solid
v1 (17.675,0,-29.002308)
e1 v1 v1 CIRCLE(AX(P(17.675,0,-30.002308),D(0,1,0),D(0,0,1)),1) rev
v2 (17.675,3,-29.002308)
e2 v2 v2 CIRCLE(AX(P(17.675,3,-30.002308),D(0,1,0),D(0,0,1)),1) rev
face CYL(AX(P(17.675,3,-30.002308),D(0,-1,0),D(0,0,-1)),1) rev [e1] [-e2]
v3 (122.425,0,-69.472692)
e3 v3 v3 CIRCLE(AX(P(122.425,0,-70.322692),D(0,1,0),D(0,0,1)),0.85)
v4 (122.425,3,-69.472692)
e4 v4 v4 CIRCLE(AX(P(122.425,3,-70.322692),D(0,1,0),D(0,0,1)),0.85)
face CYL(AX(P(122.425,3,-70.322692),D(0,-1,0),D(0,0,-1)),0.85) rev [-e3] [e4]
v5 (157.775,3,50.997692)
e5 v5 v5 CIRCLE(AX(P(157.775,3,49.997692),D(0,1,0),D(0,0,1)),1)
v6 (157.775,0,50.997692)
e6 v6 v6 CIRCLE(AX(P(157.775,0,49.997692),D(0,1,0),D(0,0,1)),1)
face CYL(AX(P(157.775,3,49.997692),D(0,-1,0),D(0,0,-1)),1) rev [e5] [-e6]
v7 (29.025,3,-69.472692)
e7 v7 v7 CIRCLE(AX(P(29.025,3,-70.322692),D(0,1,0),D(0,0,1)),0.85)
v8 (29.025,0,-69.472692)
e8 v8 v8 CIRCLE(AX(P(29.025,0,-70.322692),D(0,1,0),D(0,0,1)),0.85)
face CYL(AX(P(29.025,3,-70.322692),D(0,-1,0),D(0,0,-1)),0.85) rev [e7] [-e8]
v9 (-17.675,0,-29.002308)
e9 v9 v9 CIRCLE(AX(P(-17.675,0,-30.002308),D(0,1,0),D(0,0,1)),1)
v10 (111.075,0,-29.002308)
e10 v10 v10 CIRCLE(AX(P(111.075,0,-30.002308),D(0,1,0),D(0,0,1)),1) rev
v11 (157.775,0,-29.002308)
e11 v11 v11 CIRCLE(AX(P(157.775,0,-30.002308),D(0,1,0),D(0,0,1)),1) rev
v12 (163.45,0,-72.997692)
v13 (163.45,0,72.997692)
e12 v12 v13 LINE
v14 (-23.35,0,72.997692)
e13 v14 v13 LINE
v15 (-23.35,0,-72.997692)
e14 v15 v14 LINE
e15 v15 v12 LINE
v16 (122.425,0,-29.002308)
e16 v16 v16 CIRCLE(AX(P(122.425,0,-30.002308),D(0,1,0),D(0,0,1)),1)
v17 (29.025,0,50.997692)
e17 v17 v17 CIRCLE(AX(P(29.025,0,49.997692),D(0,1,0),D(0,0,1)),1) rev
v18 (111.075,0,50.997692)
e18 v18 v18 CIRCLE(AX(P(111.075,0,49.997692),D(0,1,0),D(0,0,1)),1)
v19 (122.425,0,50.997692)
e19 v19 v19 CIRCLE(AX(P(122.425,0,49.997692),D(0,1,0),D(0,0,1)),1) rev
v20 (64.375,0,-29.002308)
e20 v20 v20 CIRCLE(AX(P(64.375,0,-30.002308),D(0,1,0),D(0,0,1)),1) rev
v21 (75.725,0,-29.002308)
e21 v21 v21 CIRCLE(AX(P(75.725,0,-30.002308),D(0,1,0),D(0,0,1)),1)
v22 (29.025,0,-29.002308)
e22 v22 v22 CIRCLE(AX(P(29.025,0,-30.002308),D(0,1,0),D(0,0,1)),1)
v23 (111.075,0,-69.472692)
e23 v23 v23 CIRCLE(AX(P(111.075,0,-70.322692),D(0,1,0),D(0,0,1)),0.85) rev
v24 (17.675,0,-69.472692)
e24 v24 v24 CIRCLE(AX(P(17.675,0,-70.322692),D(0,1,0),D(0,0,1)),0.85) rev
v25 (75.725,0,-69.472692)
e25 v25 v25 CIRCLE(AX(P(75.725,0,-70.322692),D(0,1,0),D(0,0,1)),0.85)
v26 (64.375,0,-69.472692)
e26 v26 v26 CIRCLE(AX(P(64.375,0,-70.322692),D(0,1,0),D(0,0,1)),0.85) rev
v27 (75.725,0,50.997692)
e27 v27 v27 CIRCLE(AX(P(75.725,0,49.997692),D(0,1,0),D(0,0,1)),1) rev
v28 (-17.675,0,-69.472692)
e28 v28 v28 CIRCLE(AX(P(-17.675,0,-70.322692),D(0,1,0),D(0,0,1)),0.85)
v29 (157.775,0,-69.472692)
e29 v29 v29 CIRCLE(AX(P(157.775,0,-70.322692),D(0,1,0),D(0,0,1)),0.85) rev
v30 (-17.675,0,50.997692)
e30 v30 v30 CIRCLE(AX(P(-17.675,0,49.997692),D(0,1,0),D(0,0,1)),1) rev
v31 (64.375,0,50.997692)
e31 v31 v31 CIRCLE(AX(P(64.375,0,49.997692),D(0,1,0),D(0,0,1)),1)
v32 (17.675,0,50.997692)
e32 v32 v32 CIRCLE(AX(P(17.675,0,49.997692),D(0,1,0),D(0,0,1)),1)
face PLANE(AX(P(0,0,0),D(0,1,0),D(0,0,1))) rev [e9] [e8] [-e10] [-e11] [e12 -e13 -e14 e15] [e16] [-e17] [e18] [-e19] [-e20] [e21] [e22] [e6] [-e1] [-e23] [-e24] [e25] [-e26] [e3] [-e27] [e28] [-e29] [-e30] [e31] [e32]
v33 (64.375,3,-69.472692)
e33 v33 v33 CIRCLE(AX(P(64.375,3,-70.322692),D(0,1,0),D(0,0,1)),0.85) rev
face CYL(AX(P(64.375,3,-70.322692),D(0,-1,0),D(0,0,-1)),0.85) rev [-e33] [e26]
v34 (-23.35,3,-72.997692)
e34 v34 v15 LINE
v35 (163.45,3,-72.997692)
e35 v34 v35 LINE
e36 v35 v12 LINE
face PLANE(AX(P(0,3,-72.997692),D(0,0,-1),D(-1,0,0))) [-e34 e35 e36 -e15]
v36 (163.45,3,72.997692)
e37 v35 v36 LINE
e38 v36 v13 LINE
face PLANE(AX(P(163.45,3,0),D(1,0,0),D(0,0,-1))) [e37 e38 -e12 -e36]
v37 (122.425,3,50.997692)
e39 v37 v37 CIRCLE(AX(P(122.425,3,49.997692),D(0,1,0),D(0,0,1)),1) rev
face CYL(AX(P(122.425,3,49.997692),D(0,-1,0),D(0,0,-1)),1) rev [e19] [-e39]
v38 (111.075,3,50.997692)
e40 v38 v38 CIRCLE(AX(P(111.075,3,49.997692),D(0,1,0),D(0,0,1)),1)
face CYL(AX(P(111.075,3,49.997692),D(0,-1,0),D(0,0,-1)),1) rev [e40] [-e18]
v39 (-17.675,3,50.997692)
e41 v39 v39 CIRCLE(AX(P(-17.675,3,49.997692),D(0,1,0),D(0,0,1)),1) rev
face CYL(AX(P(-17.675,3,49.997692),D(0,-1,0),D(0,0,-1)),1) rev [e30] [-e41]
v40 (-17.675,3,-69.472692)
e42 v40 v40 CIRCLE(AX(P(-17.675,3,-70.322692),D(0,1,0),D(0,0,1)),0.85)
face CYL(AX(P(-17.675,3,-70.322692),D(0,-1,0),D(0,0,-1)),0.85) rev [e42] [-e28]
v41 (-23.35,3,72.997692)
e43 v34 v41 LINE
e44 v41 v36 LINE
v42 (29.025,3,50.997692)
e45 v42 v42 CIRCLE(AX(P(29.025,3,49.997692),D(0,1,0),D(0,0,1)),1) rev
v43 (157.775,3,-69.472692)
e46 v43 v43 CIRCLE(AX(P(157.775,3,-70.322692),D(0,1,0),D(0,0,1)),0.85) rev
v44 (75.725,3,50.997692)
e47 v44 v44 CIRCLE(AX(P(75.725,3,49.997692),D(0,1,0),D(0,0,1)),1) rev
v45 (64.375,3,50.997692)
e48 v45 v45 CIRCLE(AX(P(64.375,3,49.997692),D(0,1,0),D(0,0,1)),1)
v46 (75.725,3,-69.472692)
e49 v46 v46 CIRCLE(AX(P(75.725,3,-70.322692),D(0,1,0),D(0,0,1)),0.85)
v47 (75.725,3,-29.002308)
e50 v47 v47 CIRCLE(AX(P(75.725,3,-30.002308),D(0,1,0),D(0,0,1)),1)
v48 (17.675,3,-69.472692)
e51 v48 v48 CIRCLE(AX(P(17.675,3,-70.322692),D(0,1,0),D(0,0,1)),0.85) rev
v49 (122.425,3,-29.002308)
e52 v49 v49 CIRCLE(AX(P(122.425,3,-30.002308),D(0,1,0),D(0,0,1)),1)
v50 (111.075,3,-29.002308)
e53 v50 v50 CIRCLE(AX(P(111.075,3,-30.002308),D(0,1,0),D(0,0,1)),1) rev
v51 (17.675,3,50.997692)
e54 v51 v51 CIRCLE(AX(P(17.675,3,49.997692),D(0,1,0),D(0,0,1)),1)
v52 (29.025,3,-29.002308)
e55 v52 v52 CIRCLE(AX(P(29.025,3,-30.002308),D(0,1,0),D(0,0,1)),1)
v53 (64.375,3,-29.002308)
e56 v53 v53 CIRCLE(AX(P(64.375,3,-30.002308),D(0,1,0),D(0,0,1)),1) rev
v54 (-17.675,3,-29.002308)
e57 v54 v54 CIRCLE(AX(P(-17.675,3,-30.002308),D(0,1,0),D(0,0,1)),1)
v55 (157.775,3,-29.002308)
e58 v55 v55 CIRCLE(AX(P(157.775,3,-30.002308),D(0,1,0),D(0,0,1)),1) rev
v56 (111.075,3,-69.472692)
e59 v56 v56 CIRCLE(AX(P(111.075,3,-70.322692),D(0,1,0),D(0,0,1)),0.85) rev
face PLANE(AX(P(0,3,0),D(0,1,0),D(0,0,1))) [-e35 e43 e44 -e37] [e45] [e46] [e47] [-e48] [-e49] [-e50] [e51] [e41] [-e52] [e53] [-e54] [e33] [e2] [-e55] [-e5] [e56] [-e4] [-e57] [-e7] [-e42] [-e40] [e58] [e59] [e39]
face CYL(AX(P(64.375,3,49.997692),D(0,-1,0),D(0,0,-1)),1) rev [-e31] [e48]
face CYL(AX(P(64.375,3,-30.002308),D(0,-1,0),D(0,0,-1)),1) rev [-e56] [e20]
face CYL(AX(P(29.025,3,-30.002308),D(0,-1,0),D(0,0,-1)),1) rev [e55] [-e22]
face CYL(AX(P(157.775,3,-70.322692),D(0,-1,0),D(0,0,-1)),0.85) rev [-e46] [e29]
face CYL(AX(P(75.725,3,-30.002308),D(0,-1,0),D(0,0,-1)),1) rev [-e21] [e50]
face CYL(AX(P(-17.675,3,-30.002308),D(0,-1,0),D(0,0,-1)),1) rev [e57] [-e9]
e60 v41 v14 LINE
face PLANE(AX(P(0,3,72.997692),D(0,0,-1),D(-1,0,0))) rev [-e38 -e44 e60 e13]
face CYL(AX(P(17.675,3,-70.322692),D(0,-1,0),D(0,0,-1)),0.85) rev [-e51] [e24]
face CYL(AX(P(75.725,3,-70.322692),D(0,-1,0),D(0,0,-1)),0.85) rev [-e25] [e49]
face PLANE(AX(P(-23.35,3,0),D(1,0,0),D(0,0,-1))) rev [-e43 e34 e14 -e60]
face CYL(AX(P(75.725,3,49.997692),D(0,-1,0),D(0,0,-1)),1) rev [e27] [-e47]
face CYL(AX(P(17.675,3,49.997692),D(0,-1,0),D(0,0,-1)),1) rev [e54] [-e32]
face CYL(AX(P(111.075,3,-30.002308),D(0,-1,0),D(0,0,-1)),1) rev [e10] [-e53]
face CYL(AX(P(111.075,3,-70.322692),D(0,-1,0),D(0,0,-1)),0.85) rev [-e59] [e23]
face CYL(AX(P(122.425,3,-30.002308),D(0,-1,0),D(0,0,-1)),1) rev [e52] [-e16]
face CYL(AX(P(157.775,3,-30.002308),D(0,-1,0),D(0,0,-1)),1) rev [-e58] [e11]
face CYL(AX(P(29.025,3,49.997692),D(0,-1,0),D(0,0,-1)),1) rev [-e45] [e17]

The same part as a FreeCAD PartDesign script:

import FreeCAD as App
import Part
import Sketcher
Q = App.Units.Quantity

doc = App.newDocument("Part")
params = doc.addObject("Spreadsheet::Sheet", "Params")
for row, (alias, value) in enumerate([
    ("sketch1_diameter", "2 mm"),
    ("sketch1_diameter2", "1.7 mm"),
    ("sketch1_width", "186.8 mm"),
    ("pad1_length", "3 mm"),
], start=1):
    params.set(f"A{row}", alias)
    params.set(f"B{row}", "=" + value)
    params.setAlias(f"B{row}", alias)

body = doc.addObject("PartDesign::Body", "Body")

# Sketch on XZ plane
sketch1 = doc.addObject("Sketcher::SketchObject", "Sketch")
body.addObject(sketch1)
sketch1.AttachmentSupport = (doc.XZ_Plane, [""])
sketch1.MapMode = "FlatFace"
sketch1.addGeometry(Part.LineSegment(App.Vector(-23.35, -72.997692, 0), App.Vector(-23.35, 72.997692, 0)), False)
sketch1.addGeometry(Part.LineSegment(App.Vector(-23.35, 72.997692, 0), App.Vector(163.45, 72.997692, 0)), False)
sketch1.addGeometry(Part.LineSegment(App.Vector(163.45, 72.997692, 0), App.Vector(163.45, -72.997692, 0)), False)
sketch1.addGeometry(Part.LineSegment(App.Vector(163.45, -72.997692, 0), App.Vector(-23.35, -72.997692, 0)), False)
sketch1.addGeometry(Part.Circle(App.Vector(-17.675, 49.997692, 0), App.Vector(0, 0, 1), 1), False)
sketch1.addGeometry(Part.Circle(App.Vector(17.675, 49.997692, 0), App.Vector(0, 0, 1), 1), False)
sketch1.addGeometry(Part.Circle(App.Vector(-17.675, -30.002308, 0), App.Vector(0, 0, 1), 1), False)
sketch1.addGeometry(Part.Circle(App.Vector(-17.675, -70.322692, 0), App.Vector(0, 0, 1), 0.85), False)
sketch1.addGeometry(Part.Circle(App.Vector(17.675, -30.002308, 0), App.Vector(0, 0, 1), 1), False)
sketch1.addGeometry(Part.Circle(App.Vector(17.675, -70.322692, 0), App.Vector(0, 0, 1), 0.85), False)
sketch1.addGeometry(Part.Circle(App.Vector(64.375, -70.322692, 0), App.Vector(0, 0, 1), 0.85), False)
sketch1.addGeometry(Part.Circle(App.Vector(29.025, 49.997692, 0), App.Vector(0, 0, 1), 1), False)
sketch1.addGeometry(Part.Circle(App.Vector(64.375, 49.997692, 0), App.Vector(0, 0, 1), 1), False)
sketch1.addGeometry(Part.Circle(App.Vector(29.025, -30.002308, 0), App.Vector(0, 0, 1), 1), False)
sketch1.addGeometry(Part.Circle(App.Vector(29.025, -70.322692, 0), App.Vector(0, 0, 1), 0.85), False)
sketch1.addGeometry(Part.Circle(App.Vector(64.375, -30.002308, 0), App.Vector(0, 0, 1), 1), False)
sketch1.addGeometry(Part.Circle(App.Vector(111.075, -70.322692, 0), App.Vector(0, 0, 1), 0.85), False)
sketch1.addGeometry(Part.Circle(App.Vector(75.725, 49.997692, 0), App.Vector(0, 0, 1), 1), False)
sketch1.addGeometry(Part.Circle(App.Vector(111.075, 49.997692, 0), App.Vector(0, 0, 1), 1), False)
sketch1.addGeometry(Part.Circle(App.Vector(75.725, -30.002308, 0), App.Vector(0, 0, 1), 1), False)
sketch1.addGeometry(Part.Circle(App.Vector(75.725, -70.322692, 0), App.Vector(0, 0, 1), 0.85), False)
sketch1.addGeometry(Part.Circle(App.Vector(111.075, -30.002308, 0), App.Vector(0, 0, 1), 1), False)
sketch1.addGeometry(Part.Circle(App.Vector(157.775, -70.322692, 0), App.Vector(0, 0, 1), 0.85), False)
sketch1.addGeometry(Part.Circle(App.Vector(122.425, 49.997692, 0), App.Vector(0, 0, 1), 1), False)
sketch1.addGeometry(Part.Circle(App.Vector(157.775, 49.997692, 0), App.Vector(0, 0, 1), 1), False)
sketch1.addGeometry(Part.Circle(App.Vector(122.425, -30.002308, 0), App.Vector(0, 0, 1), 1), False)
sketch1.addGeometry(Part.Circle(App.Vector(122.425, -70.322692, 0), App.Vector(0, 0, 1), 0.85), False)
sketch1.addGeometry(Part.Circle(App.Vector(157.775, -30.002308, 0), App.Vector(0, 0, 1), 1), False)
sketch1.addConstraint(Sketcher.Constraint("Coincident", 0, 2, 1, 1))
sketch1.addConstraint(Sketcher.Constraint("Coincident", 1, 2, 2, 1))
sketch1.addConstraint(Sketcher.Constraint("Coincident", 2, 2, 3, 1))
sketch1.addConstraint(Sketcher.Constraint("Coincident", 3, 2, 0, 1))
sketch1.addConstraint(Sketcher.Constraint("Vertical", 0))
sketch1.addConstraint(Sketcher.Constraint("Horizontal", 1))
sketch1.addConstraint(Sketcher.Constraint("Vertical", 2))
sketch1.addConstraint(Sketcher.Constraint("Horizontal", 3))
sketch1.addConstraint(Sketcher.Constraint("Equal", 4, 5))
sketch1.addConstraint(Sketcher.Constraint("Equal", 5, 6))
sketch1.addConstraint(Sketcher.Constraint("Equal", 6, 8))
sketch1.addConstraint(Sketcher.Constraint("Equal", 7, 9))
sketch1.addConstraint(Sketcher.Constraint("Equal", 9, 10))
sketch1.addConstraint(Sketcher.Constraint("Equal", 8, 11))
sketch1.addConstraint(Sketcher.Constraint("Equal", 11, 12))
sketch1.addConstraint(Sketcher.Constraint("Equal", 12, 13))
sketch1.addConstraint(Sketcher.Constraint("Equal", 10, 14))
sketch1.addConstraint(Sketcher.Constraint("Equal", 13, 15))
sketch1.addConstraint(Sketcher.Constraint("Equal", 14, 16))
sketch1.addConstraint(Sketcher.Constraint("Equal", 15, 17))
sketch1.addConstraint(Sketcher.Constraint("Equal", 17, 18))
sketch1.addConstraint(Sketcher.Constraint("Equal", 18, 19))
sketch1.addConstraint(Sketcher.Constraint("Equal", 16, 20))
sketch1.addConstraint(Sketcher.Constraint("Equal", 19, 21))
sketch1.addConstraint(Sketcher.Constraint("Equal", 20, 22))
sketch1.addConstraint(Sketcher.Constraint("Equal", 21, 23))
sketch1.addConstraint(Sketcher.Constraint("Equal", 23, 24))
sketch1.addConstraint(Sketcher.Constraint("Equal", 24, 25))
sketch1.addConstraint(Sketcher.Constraint("Equal", 22, 26))
sketch1.addConstraint(Sketcher.Constraint("Equal", 25, 27))
sketch1.addConstraint(Sketcher.Constraint("Symmetric", 4, 3, 5, 3, -2))
sketch1.addConstraint(Sketcher.Constraint("Symmetric", 6, 3, 8, 3, -2))
sketch1.addConstraint(Sketcher.Constraint("Symmetric", 7, 3, 9, 3, -2))
sketch1.addConstraint(Sketcher.Constraint("Horizontal", 9, 3, 10, 3))
sketch1.addConstraint(Sketcher.Constraint("Horizontal", 5, 3, 11, 3))
sketch1.addConstraint(Sketcher.Constraint("Horizontal", 11, 3, 12, 3))
sketch1.addConstraint(Sketcher.Constraint("Horizontal", 8, 3, 13, 3))
sketch1.addConstraint(Sketcher.Constraint("Horizontal", 10, 3, 14, 3))
sketch1.addConstraint(Sketcher.Constraint("Horizontal", 13, 3, 15, 3))
sketch1.addConstraint(Sketcher.Constraint("Horizontal", 14, 3, 16, 3))
sketch1.addConstraint(Sketcher.Constraint("Horizontal", 12, 3, 17, 3))
sketch1.addConstraint(Sketcher.Constraint("Horizontal", 17, 3, 18, 3))
sketch1.addConstraint(Sketcher.Constraint("Horizontal", 15, 3, 19, 3))
sketch1.addConstraint(Sketcher.Constraint("Horizontal", 16, 3, 20, 3))
sketch1.addConstraint(Sketcher.Constraint("Horizontal", 19, 3, 21, 3))
sketch1.addConstraint(Sketcher.Constraint("Horizontal", 20, 3, 22, 3))
sketch1.addConstraint(Sketcher.Constraint("Horizontal", 18, 3, 23, 3))
sketch1.addConstraint(Sketcher.Constraint("Horizontal", 23, 3, 24, 3))
sketch1.addConstraint(Sketcher.Constraint("Horizontal", 21, 3, 25, 3))
sketch1.addConstraint(Sketcher.Constraint("Horizontal", 22, 3, 26, 3))
sketch1.addConstraint(Sketcher.Constraint("Horizontal", 25, 3, 27, 3))
sketch1.addConstraint(Sketcher.Constraint("Vertical", 4, 3, 6, 3))
sketch1.addConstraint(Sketcher.Constraint("Vertical", 6, 3, 7, 3))
sketch1.addConstraint(Sketcher.Constraint("Vertical", 10, 3, 12, 3))
sketch1.addConstraint(Sketcher.Constraint("Vertical", 11, 3, 13, 3))
sketch1.addConstraint(Sketcher.Constraint("Vertical", 13, 3, 14, 3))
sketch1.addConstraint(Sketcher.Constraint("Vertical", 12, 3, 15, 3))
sketch1.addConstraint(Sketcher.Constraint("Vertical", 16, 3, 18, 3))
sketch1.addConstraint(Sketcher.Constraint("Vertical", 17, 3, 19, 3))
sketch1.addConstraint(Sketcher.Constraint("Vertical", 19, 3, 20, 3))
sketch1.addConstraint(Sketcher.Constraint("Vertical", 18, 3, 21, 3))
sketch1.addConstraint(Sketcher.Constraint("Vertical", 22, 3, 24, 3))
sketch1.addConstraint(Sketcher.Constraint("Vertical", 23, 3, 25, 3))
sketch1.addConstraint(Sketcher.Constraint("Vertical", 25, 3, 26, 3))
sketch1.addConstraint(Sketcher.Constraint("Vertical", 24, 3, 27, 3))
sketch1.addConstraint(Sketcher.Constraint("Diameter", 4, Q("2 mm")))
sketch1.addConstraint(Sketcher.Constraint("Diameter", 7, Q("1.7 mm")))
sketch1.addConstraint(Sketcher.Constraint("DistanceX", 1, 1, 1, 2, Q("186.8 mm")))
sketch1.addConstraint(Sketcher.Constraint("DistanceY", 6, 3, 4, 3, Q("80 mm")))
sketch1.addConstraint(Sketcher.Constraint("DistanceY", 4, 3, 0, 2, Q("23 mm")))
sketch1.addConstraint(Sketcher.Constraint("DistanceX", 9, 3, 10, 3, Q("46.7 mm")))
sketch1.addConstraint(Sketcher.Constraint("DistanceX", 4, 3, 11, 3, Q("46.7 mm")))
sketch1.addConstraint(Sketcher.Constraint("DistanceX", 10, 3, 16, 3, Q("46.7 mm")))
sketch1.addConstraint(Sketcher.Constraint("DistanceX", 11, 3, 17, 3, Q("46.7 mm")))
sketch1.addConstraint(Sketcher.Constraint("DistanceX", 16, 3, 22, 3, Q("46.7 mm")))
sketch1.addConstraint(Sketcher.Constraint("DistanceX", 17, 3, 23, 3, Q("46.7 mm")))
sketch1.addConstraint(Sketcher.Constraint("DistanceX", 0, 2, -1, 1, Q("23.35 mm")))
sketch1.addConstraint(Sketcher.Constraint("DistanceX", 4, 3, 5, 3, Q("35.35 mm")))
sketch1.addConstraint(Sketcher.Constraint("DistanceY", 2, 2, 22, 3, Q("2.675 mm")))
sketch1.addConstraint(Sketcher.Constraint("DistanceY", 0, 1, 0, 2, Q("145.995385 mm")))
sketch1.addConstraint(Sketcher.Constraint("DistanceY", -1, 1, 4, 3, Q("49.997692 mm")))
sketch1.setExpression("Constraints[65]", "Params.sketch1_diameter")
sketch1.setExpression("Constraints[66]", "Params.sketch1_diameter2")
sketch1.setExpression("Constraints[67]", "Params.sketch1_width")
pad1 = doc.addObject("PartDesign::Pad", "Pad")
body.addObject(pad1)
pad1.Profile = sketch1
pad1.setExpression("Length", "Params.pad1_length")
pad1.Reversed = True

doc.recompute()
